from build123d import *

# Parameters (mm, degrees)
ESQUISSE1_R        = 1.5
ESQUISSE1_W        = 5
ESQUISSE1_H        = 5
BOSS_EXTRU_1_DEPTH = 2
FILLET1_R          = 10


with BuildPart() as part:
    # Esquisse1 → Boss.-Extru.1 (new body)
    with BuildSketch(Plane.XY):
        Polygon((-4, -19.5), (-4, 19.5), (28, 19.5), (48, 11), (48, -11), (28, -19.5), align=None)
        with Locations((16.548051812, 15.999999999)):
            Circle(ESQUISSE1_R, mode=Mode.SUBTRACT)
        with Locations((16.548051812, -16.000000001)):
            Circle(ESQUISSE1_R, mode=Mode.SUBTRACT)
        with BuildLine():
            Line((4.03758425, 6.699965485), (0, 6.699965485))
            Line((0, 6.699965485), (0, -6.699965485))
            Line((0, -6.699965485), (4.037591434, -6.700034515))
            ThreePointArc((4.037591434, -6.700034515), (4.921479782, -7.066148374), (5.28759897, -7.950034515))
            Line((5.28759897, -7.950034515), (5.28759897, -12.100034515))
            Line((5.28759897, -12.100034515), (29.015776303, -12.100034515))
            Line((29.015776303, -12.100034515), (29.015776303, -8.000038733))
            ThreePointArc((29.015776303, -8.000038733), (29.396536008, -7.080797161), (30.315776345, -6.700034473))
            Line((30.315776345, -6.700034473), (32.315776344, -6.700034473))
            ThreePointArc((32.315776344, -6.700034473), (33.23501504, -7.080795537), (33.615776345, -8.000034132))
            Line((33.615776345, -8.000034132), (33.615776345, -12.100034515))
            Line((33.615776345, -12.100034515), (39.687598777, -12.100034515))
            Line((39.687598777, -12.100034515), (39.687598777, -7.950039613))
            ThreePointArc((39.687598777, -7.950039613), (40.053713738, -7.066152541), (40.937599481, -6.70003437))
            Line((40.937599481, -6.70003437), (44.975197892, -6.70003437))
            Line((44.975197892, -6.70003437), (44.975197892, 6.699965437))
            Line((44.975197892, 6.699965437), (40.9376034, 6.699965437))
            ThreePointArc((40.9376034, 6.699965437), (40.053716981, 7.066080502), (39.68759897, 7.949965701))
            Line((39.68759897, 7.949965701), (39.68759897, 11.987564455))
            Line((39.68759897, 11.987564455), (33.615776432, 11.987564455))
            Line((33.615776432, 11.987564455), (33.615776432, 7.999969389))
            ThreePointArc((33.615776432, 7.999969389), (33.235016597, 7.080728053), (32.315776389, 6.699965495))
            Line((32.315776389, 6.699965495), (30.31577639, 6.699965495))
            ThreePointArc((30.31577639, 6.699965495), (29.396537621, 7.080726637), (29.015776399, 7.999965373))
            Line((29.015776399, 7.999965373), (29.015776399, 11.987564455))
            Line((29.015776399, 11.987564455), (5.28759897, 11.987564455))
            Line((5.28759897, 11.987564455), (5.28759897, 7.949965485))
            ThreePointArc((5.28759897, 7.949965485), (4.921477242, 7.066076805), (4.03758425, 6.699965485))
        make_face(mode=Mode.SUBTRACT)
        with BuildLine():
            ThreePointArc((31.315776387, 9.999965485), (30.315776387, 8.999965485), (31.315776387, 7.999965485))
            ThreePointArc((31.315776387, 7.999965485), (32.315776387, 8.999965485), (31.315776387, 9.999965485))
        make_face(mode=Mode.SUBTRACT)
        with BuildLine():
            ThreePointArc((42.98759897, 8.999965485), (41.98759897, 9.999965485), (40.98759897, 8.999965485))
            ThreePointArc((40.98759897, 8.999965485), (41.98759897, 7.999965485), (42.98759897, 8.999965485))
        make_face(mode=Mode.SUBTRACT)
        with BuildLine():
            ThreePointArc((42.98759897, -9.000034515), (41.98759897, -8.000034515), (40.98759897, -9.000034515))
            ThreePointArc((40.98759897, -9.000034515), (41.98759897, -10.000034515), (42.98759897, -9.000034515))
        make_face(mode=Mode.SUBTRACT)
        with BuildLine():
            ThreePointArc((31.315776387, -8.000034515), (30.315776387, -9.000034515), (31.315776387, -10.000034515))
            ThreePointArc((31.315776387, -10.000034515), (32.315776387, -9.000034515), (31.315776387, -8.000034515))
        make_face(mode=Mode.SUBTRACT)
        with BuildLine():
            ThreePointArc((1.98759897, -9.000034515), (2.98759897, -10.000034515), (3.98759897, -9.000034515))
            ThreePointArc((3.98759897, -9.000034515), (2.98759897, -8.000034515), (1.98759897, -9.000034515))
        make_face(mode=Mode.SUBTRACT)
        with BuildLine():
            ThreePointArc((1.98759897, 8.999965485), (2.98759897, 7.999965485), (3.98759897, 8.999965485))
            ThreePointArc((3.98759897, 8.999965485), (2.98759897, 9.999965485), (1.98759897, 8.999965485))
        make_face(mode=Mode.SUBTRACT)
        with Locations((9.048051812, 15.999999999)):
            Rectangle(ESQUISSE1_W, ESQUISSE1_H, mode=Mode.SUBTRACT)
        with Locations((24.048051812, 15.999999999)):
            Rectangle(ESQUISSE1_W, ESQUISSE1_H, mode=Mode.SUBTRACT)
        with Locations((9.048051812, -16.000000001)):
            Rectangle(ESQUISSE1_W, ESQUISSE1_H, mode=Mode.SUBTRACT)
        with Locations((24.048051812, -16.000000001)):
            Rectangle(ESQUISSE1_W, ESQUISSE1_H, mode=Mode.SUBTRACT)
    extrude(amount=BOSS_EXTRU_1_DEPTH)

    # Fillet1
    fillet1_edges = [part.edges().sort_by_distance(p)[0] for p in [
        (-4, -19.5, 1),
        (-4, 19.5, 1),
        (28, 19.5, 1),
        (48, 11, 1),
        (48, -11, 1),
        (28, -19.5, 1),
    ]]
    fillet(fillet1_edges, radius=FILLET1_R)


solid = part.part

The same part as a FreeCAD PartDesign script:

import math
import FreeCAD as App
import Part
import Sketcher
from FreeCAD import Vector


def edges_at(feature, points):
    """Names of the edges that pass closest to the given points."""
    edges = feature.Shape.Edges
    near = lambda p: min(range(len(edges)), key=lambda i: edges[i].distToShape(Part.Vertex(*p))[0])
    return sorted({f"Edge{near(p) + 1}" for p in points})

doc = App.newDocument("Part")
params = doc.addObject("Spreadsheet::Sheet", "Params")
for row, (alias, value) in enumerate([
    ("sketch1_diameter", "2 mm"),
    ("sketch1_diameter2", "3 mm"),
    ("sketch1_radius", "1.3 mm"),
    ("sketch1_width", "32 mm"),
    ("sketch1_width2", "5 mm"),
    ("pad1_length", "2 mm"),
    ("fillet_radius", "10 mm"),
], start=1):
    params.set(f"A{row}", alias)
    params.set(f"B{row}", "=" + value)
    params.setAlias(f"B{row}", alias)

body = doc.addObject("PartDesign::Body", "Body")

sketch1 = body.newObject("Sketcher::SketchObject", "Sketch")
sketch1.AttachmentSupport = (doc.getObject("XY_Plane"), [""])
sketch1.MapMode = "FlatFace"
sketch1.addGeometry(Part.LineSegment(Vector(-4, 19.5, 0), Vector(-4, -19.5, 0)), False)
sketch1.addGeometry(Part.LineSegment(Vector(-4, -19.5, 0), Vector(28, -19.5, 0)), False)
sketch1.addGeometry(Part.LineSegment(Vector(28, -19.5, 0), Vector(48, -11, 0)), False)
sketch1.addGeometry(Part.LineSegment(Vector(48, -11, 0), Vector(48, 11, 0)), False)
sketch1.addGeometry(Part.LineSegment(Vector(48, 11, 0), Vector(28, 19.5, 0)), False)
sketch1.addGeometry(Part.LineSegment(Vector(28, 19.5, 0), Vector(-4, 19.5, 0)), False)
sketch1.addGeometry(Part.LineSegment(Vector(21.5, -18.5, 0), Vector(21.5, -13.5, 0)), False)
sketch1.addGeometry(Part.LineSegment(Vector(21.5, -13.5, 0), Vector(26.5, -13.5, 0)), False)
sketch1.addGeometry(Part.LineSegment(Vector(26.5, -13.5, 0), Vector(26.5, -18.5, 0)), False)
sketch1.addGeometry(Part.LineSegment(Vector(26.5, -18.5, 0), Vector(21.5, -18.5, 0)), False)
sketch1.addGeometry(Part.Circle(Vector(42, -9, 0), Vector(0, 0, 1), 1), False)
sketch1.addGeometry(Part.Circle(Vector(31.3, -9, 0), Vector(0, 0, 1), 1), False)
sketch1.addGeometry(Part.Circle(Vector(16.5, -16, 0), Vector(0, 0, 1), 1.5), False)
sketch1.addGeometry(Part.LineSegment(Vector(6.5, -18.5, 0), Vector(6.5, -13.5, 0)), False)
sketch1.addGeometry(Part.LineSegment(Vector(6.5, -13.5, 0), Vector(11.5, -13.5, 0)), False)
sketch1.addGeometry(Part.LineSegment(Vector(11.5, -13.5, 0), Vector(11.5, -18.5, 0)), False)
sketch1.addGeometry(Part.LineSegment(Vector(11.5, -18.5, 0), Vector(6.5, -18.5, 0)), False)
sketch1.addGeometry(Part.ArcOfCircle(Part.Circle(Vector(4, 7.9, 0), Vector(0, 0, 1), 1.3), math.radians(-90), math.radians(0)), False)
sketch1.addGeometry(Part.LineSegment(Vector(5.3, 7.9, 0), Vector(5.3, 12, 0)), False)
sketch1.addGeometry(Part.LineSegment(Vector(5.3, 12, 0), Vector(29, 12, 0)), False)
sketch1.addGeometry(Part.LineSegment(Vector(29, 12, 0), Vector(29, 8, 0)), False)
sketch1.addGeometry(Part.ArcOfCircle(Part.Circle(Vector(30.3, 8, 0), Vector(0, 0, 1), 1.3), math.radians(-180), math.radians(-90)), False)
sketch1.addGeometry(Part.LineSegment(Vector(30.3, 6.7, 0), Vector(32.3, 6.7, 0)), False)
sketch1.addGeometry(Part.ArcOfCircle(Part.Circle(Vector(32.3, 8, 0), Vector(0, 0, 1), 1.3), math.radians(-90), math.radians(0)), False)
sketch1.addGeometry(Part.LineSegment(Vector(33.6, 8, 0), Vector(33.6, 12, 0)), False)
sketch1.addGeometry(Part.LineSegment(Vector(33.6, 12, 0), Vector(39.7, 12, 0)), False)
sketch1.addGeometry(Part.LineSegment(Vector(39.7, 12, 0), Vector(39.7, 7.9, 0)), False)
sketch1.addGeometry(Part.ArcOfCircle(Part.Circle(Vector(40.9, 7.9, 0), Vector(0, 0, 1), 1.3), math.radians(180), math.radians(270)), False)
sketch1.addGeometry(Part.LineSegment(Vector(40.9, 6.7, 0), Vector(45, 6.7, 0)), False)
sketch1.addGeometry(Part.LineSegment(Vector(45, 6.7, 0), Vector(45, -6.7, 0)), False)
sketch1.addGeometry(Part.LineSegment(Vector(45, -6.7, 0), Vector(40.9, -6.7, 0)), False)
sketch1.addGeometry(Part.ArcOfCircle(Part.Circle(Vector(40.9, -8, 0), Vector(0, 0, 1), 1.3), math.radians(90), math.radians(180)), False)
sketch1.addGeometry(Part.LineSegment(Vector(39.7, -8, 0), Vector(39.7, -12.1, 0)), False)
sketch1.addGeometry(Part.LineSegment(Vector(39.7, -12.1, 0), Vector(33.6, -12.1, 0)), False)
sketch1.addGeometry(Part.LineSegment(Vector(33.6, -12.1, 0), Vector(33.6, -8, 0)), False)
sketch1.addGeometry(Part.ArcOfCircle(Part.Circle(Vector(32.3, -8, 0), Vector(0, 0, 1), 1.3), math.radians(0), math.radians(90)), False)
sketch1.addGeometry(Part.LineSegment(Vector(32.3, -6.7, 0), Vector(30.3, -6.7, 0)), False)
sketch1.addGeometry(Part.ArcOfCircle(Part.Circle(Vector(30.3, -8, 0), Vector(0, 0, 1), 1.3), math.radians(90), math.radians(180)), False)
sketch1.addGeometry(Part.LineSegment(Vector(29, -8, 0), Vector(29, -12.1, 0)), False)
sketch1.addGeometry(Part.LineSegment(Vector(29, -12.1, 0), Vector(5.3, -12.1, 0)), False)
sketch1.addGeometry(Part.LineSegment(Vector(5.3, -12.1, 0), Vector(5.3, -8, 0)), False)
sketch1.addGeometry(Part.ArcOfCircle(Part.Circle(Vector(4, -8, 0), Vector(0, 0, 1), 1.2), math.radians(0), math.radians(90)), False)
sketch1.addGeometry(Part.LineSegment(Vector(4, -6.7, 0), Vector(0, -6.7, 0)), False)
sketch1.addGeometry(Part.LineSegment(Vector(0, -6.7, 0), Vector(0, 6.7, 0)), False)
sketch1.addGeometry(Part.LineSegment(Vector(0, 6.7, 0), Vector(4, 6.7, 0)), False)
sketch1.addGeometry(Part.Circle(Vector(3, -9, 0), Vector(0, 0, 1), 1), False)
sketch1.addGeometry(Part.Circle(Vector(42, 9, 0), Vector(0, 0, 1), 1), False)
sketch1.addGeometry(Part.Circle(Vector(31.3, 9, 0), Vector(0, 0, 1), 1), False)
sketch1.addGeometry(Part.LineSegment(Vector(21.5, 13.5, 0), Vector(21.5, 18.5, 0)), False)
sketch1.addGeometry(Part.LineSegment(Vector(21.5, 18.5, 0), Vector(26.5, 18.5, 0)), False)
sketch1.addGeometry(Part.LineSegment(Vector(26.5, 18.5, 0), Vector(26.5, 13.5, 0)), False)
sketch1.addGeometry(Part.LineSegment(Vector(26.5, 13.5, 0), Vector(21.5, 13.5, 0)), False)
sketch1.addGeometry(Part.Circle(Vector(3, 9, 0), Vector(0, 0, 1), 1), False)
sketch1.addGeometry(Part.Circle(Vector(16.5, 16, 0), Vector(0, 0, 1), 1.5), False)
sketch1.addGeometry(Part.LineSegment(Vector(6.5, 13.5, 0), Vector(6.5, 18.5, 0)), False)
sketch1.addGeometry(Part.LineSegment(Vector(6.5, 18.5, 0), Vector(11.5, 18.5, 0)), False)
sketch1.addGeometry(Part.LineSegment(Vector(11.5, 18.5, 0), Vector(11.5, 13.5, 0)), False)
sketch1.addGeometry(Part.LineSegment(Vector(11.5, 13.5, 0), Vector(6.5, 13.5, 0)), False)
sketch1.addConstraint(Sketcher.Constraint("Coincident", 0, 2, 1, 1))
sketch1.addConstraint(Sketcher.Constraint("Coincident", 1, 2, 2, 1))
sketch1.addConstraint(Sketcher.Constraint("Coincident", 2, 2, 3, 1))
sketch1.addConstraint(Sketcher.Constraint("Coincident", 3, 2, 4, 1))
sketch1.addConstraint(Sketcher.Constraint("Coincident", 4, 2, 5, 1))
sketch1.addConstraint(Sketcher.Constraint("Coincident", 5, 2, 0, 1))
sketch1.addConstraint(Sketcher.Constraint("Coincident", 6, 2, 7, 1))
sketch1.addConstraint(Sketcher.Constraint("Coincident", 7, 2, 8, 1))
sketch1.addConstraint(Sketcher.Constraint("Coincident", 8, 2, 9, 1))
sketch1.addConstraint(Sketcher.Constraint("Coincident", 9, 2, 6, 1))
sketch1.addConstraint(Sketcher.Constraint("Coincident", 13, 2, 14, 1))
sketch1.addConstraint(Sketcher.Constraint("Coincident", 14, 2, 15, 1))
sketch1.addConstraint(Sketcher.Constraint("Coincident", 15, 2, 16, 1))
sketch1.addConstraint(Sketcher.Constraint("Coincident", 16, 2, 13, 1))
sketch1.addConstraint(Sketcher.Constraint("Tangent", 17, 2, 18, 1))
sketch1.addConstraint(Sketcher.Constraint("Coincident", 18, 2, 19, 1))
sketch1.addConstraint(Sketcher.Constraint("Coincident", 19, 2, 20, 1))
sketch1.addConstraint(Sketcher.Constraint("Tangent", 20, 2, 21, 1))
sketch1.addConstraint(Sketcher.Constraint("Tangent", 21, 2, 22, 1))
sketch1.addConstraint(Sketcher.Constraint("Tangent", 22, 2, 23, 1))
sketch1.addConstraint(Sketcher.Constraint("Coincident", 23, 2, 24, 1))
sketch1.addConstraint(Sketcher.Constraint("Coincident", 24, 2, 25, 1))
sketch1.addConstraint(Sketcher.Constraint("Coincident", 25, 2, 26, 1))
sketch1.addConstraint(Sketcher.Constraint("Tangent", 26, 2, 27, 1))
sketch1.addConstraint(Sketcher.Constraint("Coincident", 27, 2, 28, 1))
sketch1.addConstraint(Sketcher.Constraint("Coincident", 28, 2, 29, 1))
sketch1.addConstraint(Sketcher.Constraint("Coincident", 29, 2, 30, 1))
sketch1.addConstraint(Sketcher.Constraint("Tangent", 30, 2, 31, 1))
sketch1.addConstraint(Sketcher.Constraint("Coincident", 31, 2, 32, 1))
sketch1.addConstraint(Sketcher.Constraint("Coincident", 32, 2, 33, 1))
sketch1.addConstraint(Sketcher.Constraint("Coincident", 33, 2, 34, 1))
sketch1.addConstraint(Sketcher.Constraint("Tangent", 34, 2, 35, 1))
sketch1.addConstraint(Sketcher.Constraint("Tangent", 35, 2, 36, 1))
sketch1.addConstraint(Sketcher.Constraint("Tangent", 36, 2, 37, 1))
sketch1.addConstraint(Sketcher.Constraint("Coincident", 37, 2, 38, 1))
sketch1.addConstraint(Sketcher.Constraint("Coincident", 38, 2, 39, 1))
sketch1.addConstraint(Sketcher.Constraint("Coincident", 39, 2, 40, 1))
sketch1.addConstraint(Sketcher.Constraint("Tangent", 40, 2, 41, 1))
sketch1.addConstraint(Sketcher.Constraint("Coincident", 41, 2, 42, 1))
sketch1.addConstraint(Sketcher.Constraint("Coincident", 42, 2, 43, 1))
sketch1.addConstraint(Sketcher.Constraint("Coincident", 43, 2, 44, 1))
sketch1.addConstraint(Sketcher.Constraint("Coincident", 44, 2, 17, 1))
sketch1.addConstraint(Sketcher.Constraint("Coincident", 48, 2, 49, 1))
sketch1.addConstraint(Sketcher.Constraint("Coincident", 49, 2, 50, 1))
sketch1.addConstraint(Sketcher.Constraint("Coincident", 50, 2, 51, 1))
sketch1.addConstraint(Sketcher.Constraint("Coincident", 51, 2, 48, 1))
sketch1.addConstraint(Sketcher.Constraint("Coincident", 54, 2, 55, 1))
sketch1.addConstraint(Sketcher.Constraint("Coincident", 55, 2, 56, 1))
sketch1.addConstraint(Sketcher.Constraint("Coincident", 56, 2, 57, 1))
sketch1.addConstraint(Sketcher.Constraint("Coincident", 57, 2, 54, 1))
sketch1.addConstraint(Sketcher.Constraint("Vertical", 0))
sketch1.addConstraint(Sketcher.Constraint("Horizontal", 1))
sketch1.addConstraint(Sketcher.Constraint("Vertical", 3))
sketch1.addConstraint(Sketcher.Constraint("Horizontal", 5))
sketch1.addConstraint(Sketcher.Constraint("Vertical", 6))
sketch1.addConstraint(Sketcher.Constraint("Horizontal", 7))
sketch1.addConstraint(Sketcher.Constraint("Vertical", 8))
sketch1.addConstraint(Sketcher.Constraint("Horizontal", 9))
sketch1.addConstraint(Sketcher.Constraint("Vertical", 13))
sketch1.addConstraint(Sketcher.Constraint("Horizontal", 14))
sketch1.addConstraint(Sketcher.Constraint("Vertical", 15))
sketch1.addConstraint(Sketcher.Constraint("Horizontal", 16))
sketch1.addConstraint(Sketcher.Constraint("Vertical", 18))
sketch1.addConstraint(Sketcher.Constraint("Horizontal", 19))
sketch1.addConstraint(Sketcher.Constraint("Vertical", 20))
sketch1.addConstraint(Sketcher.Constraint("Horizontal", 22))
sketch1.addConstraint(Sketcher.Constraint("Vertical", 24))
sketch1.addConstraint(Sketcher.Constraint("Horizontal", 25))
sketch1.addConstraint(Sketcher.Constraint("Vertical", 26))
sketch1.addConstraint(Sketcher.Constraint("Horizontal", 28))
sketch1.addConstraint(Sketcher.Constraint("Vertical", 29))
sketch1.addConstraint(Sketcher.Constraint("Horizontal", 30))
sketch1.addConstraint(Sketcher.Constraint("Vertical", 32))
sketch1.addConstraint(Sketcher.Constraint("Horizontal", 33))
sketch1.addConstraint(Sketcher.Constraint("Vertical", 34))
sketch1.addConstraint(Sketcher.Constraint("Horizontal", 36))
sketch1.addConstraint(Sketcher.Constraint("Vertical", 38))
sketch1.addConstraint(Sketcher.Constraint("Horizontal", 39))
sketch1.addConstraint(Sketcher.Constraint("Vertical", 40))
sketch1.addConstraint(Sketcher.Constraint("Vertical", 43))
sketch1.addConstraint(Sketcher.Constraint("Horizontal", 44))
sketch1.addConstraint(Sketcher.Constraint("Vertical", 48))
sketch1.addConstraint(Sketcher.Constraint("Horizontal", 49))
sketch1.addConstraint(Sketcher.Constraint("Vertical", 50))
sketch1.addConstraint(Sketcher.Constraint("Horizontal", 51))
sketch1.addConstraint(Sketcher.Constraint("Vertical", 54))
sketch1.addConstraint(Sketcher.Constraint("Horizontal", 55))
sketch1.addConstraint(Sketcher.Constraint("Vertical", 56))
sketch1.addConstraint(Sketcher.Constraint("Horizontal", 57))
sketch1.addConstraint(Sketcher.Constraint("Equal", 10, 11))
sketch1.addConstraint(Sketcher.Constraint("Equal", 21, 23))
sketch1.addConstraint(Sketcher.Constraint("Equal", 17, 27))
sketch1.addConstraint(Sketcher.Constraint("Equal", 27, 31))
sketch1.addConstraint(Sketcher.Constraint("Equal", 23, 35))
sketch1.addConstraint(Sketcher.Constraint("Equal", 35, 37))
sketch1.addConstraint(Sketcher.Constraint("Equal", 31, 41))
sketch1.addConstraint(Sketcher.Constraint("Equal", 11, 45))
sketch1.addConstraint(Sketcher.Constraint("Equal", 45, 46))
sketch1.addConstraint(Sketcher.Constraint("Equal", 46, 47))
sketch1.addConstraint(Sketcher.Constraint("Equal", 47, 52))
sketch1.addConstraint(Sketcher.Constraint("Equal", 12, 53))
sketch1.addConstraint(Sketcher.Constraint("Symmetric", 42, 2, 43, 2, -1, 1))
sketch1.addConstraint(Sketcher.Constraint("Symmetric", 12, 3, 53, 3, -1))
sketch1.addConstraint(Sketcher.Constraint("Symmetric", 1, 2, 4, 2, -1))
sketch1.addConstraint(Sketcher.Constraint("Symmetric", 9, 2, 48, 2, -1))
sketch1.addConstraint(Sketcher.Constraint("Symmetric", 7, 2, 50, 2, -1))
sketch1.addConstraint(Sketcher.Constraint("Symmetric", 16, 2, 54, 2, -1))
sketch1.addConstraint(Sketcher.Constraint("Symmetric", 14, 2, 56, 2, -1))
sketch1.addConstraint(Sketcher.Constraint("Horizontal", 10, 3, 11, 3))
sketch1.addConstraint(Sketcher.Constraint("Horizontal", 17, 3, 27, 3))
sketch1.addConstraint(Sketcher.Constraint("Horizontal", 31, 3, 41, 3))
sketch1.addConstraint(Sketcher.Constraint("Horizontal", 11, 3, 45, 3))
sketch1.addConstraint(Sketcher.Constraint("Horizontal", 46, 3, 47, 3))
sketch1.addConstraint(Sketcher.Constraint("Horizontal", 47, 3, 52, 3))
sketch1.addConstraint(Sketcher.Constraint("Horizontal", 7, 2, 13, 2))
sketch1.addConstraint(Sketcher.Constraint("Horizontal", 9, 2, 15, 2))
sketch1.addConstraint(Sketcher.Constraint("Horizontal", 19, 2, 24, 2))
sketch1.addConstraint(Sketcher.Constraint("Horizontal", 22, 2, 27, 2))
sketch1.addConstraint(Sketcher.Constraint("Horizontal", 30, 2, 35, 2))
sketch1.addConstraint(Sketcher.Constraint("Horizontal", 33, 2, 38, 2))
sketch1.addConstraint(Sketcher.Constraint("Vertical", 27, 3, 31, 3))
sketch1.addConstraint(Sketcher.Constraint("Vertical", 23, 3, 35, 3))
sketch1.addConstraint(Sketcher.Constraint("Vertical", 21, 3, 37, 3))
sketch1.addConstraint(Sketcher.Constraint("Vertical", 17, 3, 41, 3))
sketch1.addConstraint(Sketcher.Constraint("Vertical", 10, 3, 46, 3))
sketch1.addConstraint(Sketcher.Constraint("Vertical", 11, 3, 47, 3))
sketch1.addConstraint(Sketcher.Constraint("Vertical", 45, 3, 52, 3))
sketch1.addConstraint(Sketcher.Constraint("Equal", 9, 14))
sketch1.addConstraint(Sketcher.Constraint("Equal", 57, 6))
sketch1.addConstraint(Sketcher.Constraint("Equal", 30, 18))
sketch1.addConstraint(Sketcher.Constraint("Equal", 2, 4))
sketch1.addConstraint(Sketcher.Constraint("Diameter", 10, 2.0))
sketch1.addConstraint(Sketcher.Constraint("Diameter", 12, 3.0))
sketch1.addConstraint(Sketcher.Constraint("Radius", 21, 1.3))
sketch1.addConstraint(Sketcher.Constraint("DistanceX", 1, 1, 1, 2, 32.0))
sketch1.addConstraint(Sketcher.Constraint("DistanceX", 7, 1, 7, 2, 5.0))
sketch1.addConstraint(Sketcher.Constraint("DistanceX", 22, 1, 22, 2, 2.0))
sketch1.addConstraint(Sketcher.Constraint("DistanceY", 0, 2, 0, 1, 39.0))
sketch1.addConstraint(Sketcher.Constraint("DistanceY", 3, 1, 3, 2, 22.0))
sketch1.addConstraint(Sketcher.Constraint("Radius", 17, 1.25))
sketch1.addConstraint(Sketcher.Constraint("DistanceY", 29, 2, 29, 1, 13.4))
sketch1.addConstraint(Sketcher.Constraint("DistanceY", 34, 1, 34, 2, 4.1))
sketch1.addConstraint(Sketcher.Constraint("DistanceY", 12, 3, -1, 1, 16.0))
sketch1.addConstraint(Sketcher.Constraint("DistanceX", 0, 2, -1, 1, 4.0))
sketch1.addConstraint(Sketcher.Constraint("DistanceX", -1, 1, 2, 2, 48.0))
sketch1.addConstraint(Sketcher.Constraint("DistanceY", 6, 2, -1, 1, 13.5))
sketch1.addConstraint(Sketcher.Constraint("DistanceX", 30, 2, 30, 1, 4.037598))
sketch1.addConstraint(Sketcher.Constraint("DistanceY", 43, 1, 43, 2, 13.399931))
sketch1.addConstraint(Sketcher.Constraint("DistanceX", -1, 1, 10, 3, 41.987599))
sketch1.addConstraint(Sketcher.Constraint("DistanceX", -1, 1, 17, 3, 4.037599))
sketch1.addConstraint(Sketcher.Constraint("DistanceX", -1, 1, 27, 3, 40.937599))
sketch1.addConstraint(Sketcher.Constraint("DistanceX", -1, 1, 45, 3, 2.987599))
sketch1.addConstraint(Sketcher.Constraint("Distance", 42, 4.037591))
sketch1.addConstraint(Sketcher.Constraint("DistanceX", 19, 1, 19, 2, 23.728177))
sketch1.addConstraint(Sketcher.Constraint("DistanceX", 28, 1, 28, 2, 4.037594))
sketch1.addConstraint(Sketcher.Constraint("DistanceX", 44, 1, 44, 2, 4.037584))
sketch1.addConstraint(Sketcher.Constraint("DistanceY", 24, 1, 24, 2, 3.987595))
sketch1.addConstraint(Sketcher.Constraint("DistanceY", 32, 2, 32, 1, 4.149995))
sketch1.addConstraint(Sketcher.Constraint("DistanceY", 38, 2, 38, 1, 4.099996))
sketch1.addConstraint(Sketcher.Constraint("DistanceX", -1, 1, 12, 3, 16.548052))
sketch1.addConstraint(Sketcher.Constraint("DistanceX", -1, 1, 6, 2, 21.548052))
sketch1.addConstraint(Sketcher.Constraint("DistanceX", -1, 1, 13, 2, 6.548052))
sketch1.addConstraint(Sketcher.Constraint("DistanceY", 10, 3, -1, 1, 9.000035))
sketch1.addConstraint(Sketcher.Constraint("DistanceX", -1, 1, 11, 3, 31.315776))
sketch1.addConstraint(Sketcher.Constraint("DistanceY", -1, 1, 46, 3, 8.999965))
sketch1.setExpression("Constraints[131]", "Params.sketch1_diameter")
sketch1.setExpression("Constraints[132]", "Params.sketch1_diameter2")
sketch1.setExpression("Constraints[133]", "Params.sketch1_radius")
sketch1.setExpression("Constraints[134]", "Params.sketch1_width")
sketch1.setExpression("Constraints[135]", "Params.sketch1_width2")
pad1 = body.newObject("PartDesign::Pad", "Pad")
pad1.Profile = sketch1
pad1.setExpression("Length", "Params.pad1_length")
doc.recompute()

fillet = body.newObject("PartDesign::Fillet", "Fillet")
fillet.Base = (pad1, edges_at(pad1, [
    (-4, -19.5, 1),
    (-4, 19.5, 1),
    (28, 19.5, 1),
    (48, 11, 1),
    (48, -11, 1),
    (28, -19.5, 1),
]))
fillet.setExpression("Radius", "Params.fillet_radius")

doc.recompute()
